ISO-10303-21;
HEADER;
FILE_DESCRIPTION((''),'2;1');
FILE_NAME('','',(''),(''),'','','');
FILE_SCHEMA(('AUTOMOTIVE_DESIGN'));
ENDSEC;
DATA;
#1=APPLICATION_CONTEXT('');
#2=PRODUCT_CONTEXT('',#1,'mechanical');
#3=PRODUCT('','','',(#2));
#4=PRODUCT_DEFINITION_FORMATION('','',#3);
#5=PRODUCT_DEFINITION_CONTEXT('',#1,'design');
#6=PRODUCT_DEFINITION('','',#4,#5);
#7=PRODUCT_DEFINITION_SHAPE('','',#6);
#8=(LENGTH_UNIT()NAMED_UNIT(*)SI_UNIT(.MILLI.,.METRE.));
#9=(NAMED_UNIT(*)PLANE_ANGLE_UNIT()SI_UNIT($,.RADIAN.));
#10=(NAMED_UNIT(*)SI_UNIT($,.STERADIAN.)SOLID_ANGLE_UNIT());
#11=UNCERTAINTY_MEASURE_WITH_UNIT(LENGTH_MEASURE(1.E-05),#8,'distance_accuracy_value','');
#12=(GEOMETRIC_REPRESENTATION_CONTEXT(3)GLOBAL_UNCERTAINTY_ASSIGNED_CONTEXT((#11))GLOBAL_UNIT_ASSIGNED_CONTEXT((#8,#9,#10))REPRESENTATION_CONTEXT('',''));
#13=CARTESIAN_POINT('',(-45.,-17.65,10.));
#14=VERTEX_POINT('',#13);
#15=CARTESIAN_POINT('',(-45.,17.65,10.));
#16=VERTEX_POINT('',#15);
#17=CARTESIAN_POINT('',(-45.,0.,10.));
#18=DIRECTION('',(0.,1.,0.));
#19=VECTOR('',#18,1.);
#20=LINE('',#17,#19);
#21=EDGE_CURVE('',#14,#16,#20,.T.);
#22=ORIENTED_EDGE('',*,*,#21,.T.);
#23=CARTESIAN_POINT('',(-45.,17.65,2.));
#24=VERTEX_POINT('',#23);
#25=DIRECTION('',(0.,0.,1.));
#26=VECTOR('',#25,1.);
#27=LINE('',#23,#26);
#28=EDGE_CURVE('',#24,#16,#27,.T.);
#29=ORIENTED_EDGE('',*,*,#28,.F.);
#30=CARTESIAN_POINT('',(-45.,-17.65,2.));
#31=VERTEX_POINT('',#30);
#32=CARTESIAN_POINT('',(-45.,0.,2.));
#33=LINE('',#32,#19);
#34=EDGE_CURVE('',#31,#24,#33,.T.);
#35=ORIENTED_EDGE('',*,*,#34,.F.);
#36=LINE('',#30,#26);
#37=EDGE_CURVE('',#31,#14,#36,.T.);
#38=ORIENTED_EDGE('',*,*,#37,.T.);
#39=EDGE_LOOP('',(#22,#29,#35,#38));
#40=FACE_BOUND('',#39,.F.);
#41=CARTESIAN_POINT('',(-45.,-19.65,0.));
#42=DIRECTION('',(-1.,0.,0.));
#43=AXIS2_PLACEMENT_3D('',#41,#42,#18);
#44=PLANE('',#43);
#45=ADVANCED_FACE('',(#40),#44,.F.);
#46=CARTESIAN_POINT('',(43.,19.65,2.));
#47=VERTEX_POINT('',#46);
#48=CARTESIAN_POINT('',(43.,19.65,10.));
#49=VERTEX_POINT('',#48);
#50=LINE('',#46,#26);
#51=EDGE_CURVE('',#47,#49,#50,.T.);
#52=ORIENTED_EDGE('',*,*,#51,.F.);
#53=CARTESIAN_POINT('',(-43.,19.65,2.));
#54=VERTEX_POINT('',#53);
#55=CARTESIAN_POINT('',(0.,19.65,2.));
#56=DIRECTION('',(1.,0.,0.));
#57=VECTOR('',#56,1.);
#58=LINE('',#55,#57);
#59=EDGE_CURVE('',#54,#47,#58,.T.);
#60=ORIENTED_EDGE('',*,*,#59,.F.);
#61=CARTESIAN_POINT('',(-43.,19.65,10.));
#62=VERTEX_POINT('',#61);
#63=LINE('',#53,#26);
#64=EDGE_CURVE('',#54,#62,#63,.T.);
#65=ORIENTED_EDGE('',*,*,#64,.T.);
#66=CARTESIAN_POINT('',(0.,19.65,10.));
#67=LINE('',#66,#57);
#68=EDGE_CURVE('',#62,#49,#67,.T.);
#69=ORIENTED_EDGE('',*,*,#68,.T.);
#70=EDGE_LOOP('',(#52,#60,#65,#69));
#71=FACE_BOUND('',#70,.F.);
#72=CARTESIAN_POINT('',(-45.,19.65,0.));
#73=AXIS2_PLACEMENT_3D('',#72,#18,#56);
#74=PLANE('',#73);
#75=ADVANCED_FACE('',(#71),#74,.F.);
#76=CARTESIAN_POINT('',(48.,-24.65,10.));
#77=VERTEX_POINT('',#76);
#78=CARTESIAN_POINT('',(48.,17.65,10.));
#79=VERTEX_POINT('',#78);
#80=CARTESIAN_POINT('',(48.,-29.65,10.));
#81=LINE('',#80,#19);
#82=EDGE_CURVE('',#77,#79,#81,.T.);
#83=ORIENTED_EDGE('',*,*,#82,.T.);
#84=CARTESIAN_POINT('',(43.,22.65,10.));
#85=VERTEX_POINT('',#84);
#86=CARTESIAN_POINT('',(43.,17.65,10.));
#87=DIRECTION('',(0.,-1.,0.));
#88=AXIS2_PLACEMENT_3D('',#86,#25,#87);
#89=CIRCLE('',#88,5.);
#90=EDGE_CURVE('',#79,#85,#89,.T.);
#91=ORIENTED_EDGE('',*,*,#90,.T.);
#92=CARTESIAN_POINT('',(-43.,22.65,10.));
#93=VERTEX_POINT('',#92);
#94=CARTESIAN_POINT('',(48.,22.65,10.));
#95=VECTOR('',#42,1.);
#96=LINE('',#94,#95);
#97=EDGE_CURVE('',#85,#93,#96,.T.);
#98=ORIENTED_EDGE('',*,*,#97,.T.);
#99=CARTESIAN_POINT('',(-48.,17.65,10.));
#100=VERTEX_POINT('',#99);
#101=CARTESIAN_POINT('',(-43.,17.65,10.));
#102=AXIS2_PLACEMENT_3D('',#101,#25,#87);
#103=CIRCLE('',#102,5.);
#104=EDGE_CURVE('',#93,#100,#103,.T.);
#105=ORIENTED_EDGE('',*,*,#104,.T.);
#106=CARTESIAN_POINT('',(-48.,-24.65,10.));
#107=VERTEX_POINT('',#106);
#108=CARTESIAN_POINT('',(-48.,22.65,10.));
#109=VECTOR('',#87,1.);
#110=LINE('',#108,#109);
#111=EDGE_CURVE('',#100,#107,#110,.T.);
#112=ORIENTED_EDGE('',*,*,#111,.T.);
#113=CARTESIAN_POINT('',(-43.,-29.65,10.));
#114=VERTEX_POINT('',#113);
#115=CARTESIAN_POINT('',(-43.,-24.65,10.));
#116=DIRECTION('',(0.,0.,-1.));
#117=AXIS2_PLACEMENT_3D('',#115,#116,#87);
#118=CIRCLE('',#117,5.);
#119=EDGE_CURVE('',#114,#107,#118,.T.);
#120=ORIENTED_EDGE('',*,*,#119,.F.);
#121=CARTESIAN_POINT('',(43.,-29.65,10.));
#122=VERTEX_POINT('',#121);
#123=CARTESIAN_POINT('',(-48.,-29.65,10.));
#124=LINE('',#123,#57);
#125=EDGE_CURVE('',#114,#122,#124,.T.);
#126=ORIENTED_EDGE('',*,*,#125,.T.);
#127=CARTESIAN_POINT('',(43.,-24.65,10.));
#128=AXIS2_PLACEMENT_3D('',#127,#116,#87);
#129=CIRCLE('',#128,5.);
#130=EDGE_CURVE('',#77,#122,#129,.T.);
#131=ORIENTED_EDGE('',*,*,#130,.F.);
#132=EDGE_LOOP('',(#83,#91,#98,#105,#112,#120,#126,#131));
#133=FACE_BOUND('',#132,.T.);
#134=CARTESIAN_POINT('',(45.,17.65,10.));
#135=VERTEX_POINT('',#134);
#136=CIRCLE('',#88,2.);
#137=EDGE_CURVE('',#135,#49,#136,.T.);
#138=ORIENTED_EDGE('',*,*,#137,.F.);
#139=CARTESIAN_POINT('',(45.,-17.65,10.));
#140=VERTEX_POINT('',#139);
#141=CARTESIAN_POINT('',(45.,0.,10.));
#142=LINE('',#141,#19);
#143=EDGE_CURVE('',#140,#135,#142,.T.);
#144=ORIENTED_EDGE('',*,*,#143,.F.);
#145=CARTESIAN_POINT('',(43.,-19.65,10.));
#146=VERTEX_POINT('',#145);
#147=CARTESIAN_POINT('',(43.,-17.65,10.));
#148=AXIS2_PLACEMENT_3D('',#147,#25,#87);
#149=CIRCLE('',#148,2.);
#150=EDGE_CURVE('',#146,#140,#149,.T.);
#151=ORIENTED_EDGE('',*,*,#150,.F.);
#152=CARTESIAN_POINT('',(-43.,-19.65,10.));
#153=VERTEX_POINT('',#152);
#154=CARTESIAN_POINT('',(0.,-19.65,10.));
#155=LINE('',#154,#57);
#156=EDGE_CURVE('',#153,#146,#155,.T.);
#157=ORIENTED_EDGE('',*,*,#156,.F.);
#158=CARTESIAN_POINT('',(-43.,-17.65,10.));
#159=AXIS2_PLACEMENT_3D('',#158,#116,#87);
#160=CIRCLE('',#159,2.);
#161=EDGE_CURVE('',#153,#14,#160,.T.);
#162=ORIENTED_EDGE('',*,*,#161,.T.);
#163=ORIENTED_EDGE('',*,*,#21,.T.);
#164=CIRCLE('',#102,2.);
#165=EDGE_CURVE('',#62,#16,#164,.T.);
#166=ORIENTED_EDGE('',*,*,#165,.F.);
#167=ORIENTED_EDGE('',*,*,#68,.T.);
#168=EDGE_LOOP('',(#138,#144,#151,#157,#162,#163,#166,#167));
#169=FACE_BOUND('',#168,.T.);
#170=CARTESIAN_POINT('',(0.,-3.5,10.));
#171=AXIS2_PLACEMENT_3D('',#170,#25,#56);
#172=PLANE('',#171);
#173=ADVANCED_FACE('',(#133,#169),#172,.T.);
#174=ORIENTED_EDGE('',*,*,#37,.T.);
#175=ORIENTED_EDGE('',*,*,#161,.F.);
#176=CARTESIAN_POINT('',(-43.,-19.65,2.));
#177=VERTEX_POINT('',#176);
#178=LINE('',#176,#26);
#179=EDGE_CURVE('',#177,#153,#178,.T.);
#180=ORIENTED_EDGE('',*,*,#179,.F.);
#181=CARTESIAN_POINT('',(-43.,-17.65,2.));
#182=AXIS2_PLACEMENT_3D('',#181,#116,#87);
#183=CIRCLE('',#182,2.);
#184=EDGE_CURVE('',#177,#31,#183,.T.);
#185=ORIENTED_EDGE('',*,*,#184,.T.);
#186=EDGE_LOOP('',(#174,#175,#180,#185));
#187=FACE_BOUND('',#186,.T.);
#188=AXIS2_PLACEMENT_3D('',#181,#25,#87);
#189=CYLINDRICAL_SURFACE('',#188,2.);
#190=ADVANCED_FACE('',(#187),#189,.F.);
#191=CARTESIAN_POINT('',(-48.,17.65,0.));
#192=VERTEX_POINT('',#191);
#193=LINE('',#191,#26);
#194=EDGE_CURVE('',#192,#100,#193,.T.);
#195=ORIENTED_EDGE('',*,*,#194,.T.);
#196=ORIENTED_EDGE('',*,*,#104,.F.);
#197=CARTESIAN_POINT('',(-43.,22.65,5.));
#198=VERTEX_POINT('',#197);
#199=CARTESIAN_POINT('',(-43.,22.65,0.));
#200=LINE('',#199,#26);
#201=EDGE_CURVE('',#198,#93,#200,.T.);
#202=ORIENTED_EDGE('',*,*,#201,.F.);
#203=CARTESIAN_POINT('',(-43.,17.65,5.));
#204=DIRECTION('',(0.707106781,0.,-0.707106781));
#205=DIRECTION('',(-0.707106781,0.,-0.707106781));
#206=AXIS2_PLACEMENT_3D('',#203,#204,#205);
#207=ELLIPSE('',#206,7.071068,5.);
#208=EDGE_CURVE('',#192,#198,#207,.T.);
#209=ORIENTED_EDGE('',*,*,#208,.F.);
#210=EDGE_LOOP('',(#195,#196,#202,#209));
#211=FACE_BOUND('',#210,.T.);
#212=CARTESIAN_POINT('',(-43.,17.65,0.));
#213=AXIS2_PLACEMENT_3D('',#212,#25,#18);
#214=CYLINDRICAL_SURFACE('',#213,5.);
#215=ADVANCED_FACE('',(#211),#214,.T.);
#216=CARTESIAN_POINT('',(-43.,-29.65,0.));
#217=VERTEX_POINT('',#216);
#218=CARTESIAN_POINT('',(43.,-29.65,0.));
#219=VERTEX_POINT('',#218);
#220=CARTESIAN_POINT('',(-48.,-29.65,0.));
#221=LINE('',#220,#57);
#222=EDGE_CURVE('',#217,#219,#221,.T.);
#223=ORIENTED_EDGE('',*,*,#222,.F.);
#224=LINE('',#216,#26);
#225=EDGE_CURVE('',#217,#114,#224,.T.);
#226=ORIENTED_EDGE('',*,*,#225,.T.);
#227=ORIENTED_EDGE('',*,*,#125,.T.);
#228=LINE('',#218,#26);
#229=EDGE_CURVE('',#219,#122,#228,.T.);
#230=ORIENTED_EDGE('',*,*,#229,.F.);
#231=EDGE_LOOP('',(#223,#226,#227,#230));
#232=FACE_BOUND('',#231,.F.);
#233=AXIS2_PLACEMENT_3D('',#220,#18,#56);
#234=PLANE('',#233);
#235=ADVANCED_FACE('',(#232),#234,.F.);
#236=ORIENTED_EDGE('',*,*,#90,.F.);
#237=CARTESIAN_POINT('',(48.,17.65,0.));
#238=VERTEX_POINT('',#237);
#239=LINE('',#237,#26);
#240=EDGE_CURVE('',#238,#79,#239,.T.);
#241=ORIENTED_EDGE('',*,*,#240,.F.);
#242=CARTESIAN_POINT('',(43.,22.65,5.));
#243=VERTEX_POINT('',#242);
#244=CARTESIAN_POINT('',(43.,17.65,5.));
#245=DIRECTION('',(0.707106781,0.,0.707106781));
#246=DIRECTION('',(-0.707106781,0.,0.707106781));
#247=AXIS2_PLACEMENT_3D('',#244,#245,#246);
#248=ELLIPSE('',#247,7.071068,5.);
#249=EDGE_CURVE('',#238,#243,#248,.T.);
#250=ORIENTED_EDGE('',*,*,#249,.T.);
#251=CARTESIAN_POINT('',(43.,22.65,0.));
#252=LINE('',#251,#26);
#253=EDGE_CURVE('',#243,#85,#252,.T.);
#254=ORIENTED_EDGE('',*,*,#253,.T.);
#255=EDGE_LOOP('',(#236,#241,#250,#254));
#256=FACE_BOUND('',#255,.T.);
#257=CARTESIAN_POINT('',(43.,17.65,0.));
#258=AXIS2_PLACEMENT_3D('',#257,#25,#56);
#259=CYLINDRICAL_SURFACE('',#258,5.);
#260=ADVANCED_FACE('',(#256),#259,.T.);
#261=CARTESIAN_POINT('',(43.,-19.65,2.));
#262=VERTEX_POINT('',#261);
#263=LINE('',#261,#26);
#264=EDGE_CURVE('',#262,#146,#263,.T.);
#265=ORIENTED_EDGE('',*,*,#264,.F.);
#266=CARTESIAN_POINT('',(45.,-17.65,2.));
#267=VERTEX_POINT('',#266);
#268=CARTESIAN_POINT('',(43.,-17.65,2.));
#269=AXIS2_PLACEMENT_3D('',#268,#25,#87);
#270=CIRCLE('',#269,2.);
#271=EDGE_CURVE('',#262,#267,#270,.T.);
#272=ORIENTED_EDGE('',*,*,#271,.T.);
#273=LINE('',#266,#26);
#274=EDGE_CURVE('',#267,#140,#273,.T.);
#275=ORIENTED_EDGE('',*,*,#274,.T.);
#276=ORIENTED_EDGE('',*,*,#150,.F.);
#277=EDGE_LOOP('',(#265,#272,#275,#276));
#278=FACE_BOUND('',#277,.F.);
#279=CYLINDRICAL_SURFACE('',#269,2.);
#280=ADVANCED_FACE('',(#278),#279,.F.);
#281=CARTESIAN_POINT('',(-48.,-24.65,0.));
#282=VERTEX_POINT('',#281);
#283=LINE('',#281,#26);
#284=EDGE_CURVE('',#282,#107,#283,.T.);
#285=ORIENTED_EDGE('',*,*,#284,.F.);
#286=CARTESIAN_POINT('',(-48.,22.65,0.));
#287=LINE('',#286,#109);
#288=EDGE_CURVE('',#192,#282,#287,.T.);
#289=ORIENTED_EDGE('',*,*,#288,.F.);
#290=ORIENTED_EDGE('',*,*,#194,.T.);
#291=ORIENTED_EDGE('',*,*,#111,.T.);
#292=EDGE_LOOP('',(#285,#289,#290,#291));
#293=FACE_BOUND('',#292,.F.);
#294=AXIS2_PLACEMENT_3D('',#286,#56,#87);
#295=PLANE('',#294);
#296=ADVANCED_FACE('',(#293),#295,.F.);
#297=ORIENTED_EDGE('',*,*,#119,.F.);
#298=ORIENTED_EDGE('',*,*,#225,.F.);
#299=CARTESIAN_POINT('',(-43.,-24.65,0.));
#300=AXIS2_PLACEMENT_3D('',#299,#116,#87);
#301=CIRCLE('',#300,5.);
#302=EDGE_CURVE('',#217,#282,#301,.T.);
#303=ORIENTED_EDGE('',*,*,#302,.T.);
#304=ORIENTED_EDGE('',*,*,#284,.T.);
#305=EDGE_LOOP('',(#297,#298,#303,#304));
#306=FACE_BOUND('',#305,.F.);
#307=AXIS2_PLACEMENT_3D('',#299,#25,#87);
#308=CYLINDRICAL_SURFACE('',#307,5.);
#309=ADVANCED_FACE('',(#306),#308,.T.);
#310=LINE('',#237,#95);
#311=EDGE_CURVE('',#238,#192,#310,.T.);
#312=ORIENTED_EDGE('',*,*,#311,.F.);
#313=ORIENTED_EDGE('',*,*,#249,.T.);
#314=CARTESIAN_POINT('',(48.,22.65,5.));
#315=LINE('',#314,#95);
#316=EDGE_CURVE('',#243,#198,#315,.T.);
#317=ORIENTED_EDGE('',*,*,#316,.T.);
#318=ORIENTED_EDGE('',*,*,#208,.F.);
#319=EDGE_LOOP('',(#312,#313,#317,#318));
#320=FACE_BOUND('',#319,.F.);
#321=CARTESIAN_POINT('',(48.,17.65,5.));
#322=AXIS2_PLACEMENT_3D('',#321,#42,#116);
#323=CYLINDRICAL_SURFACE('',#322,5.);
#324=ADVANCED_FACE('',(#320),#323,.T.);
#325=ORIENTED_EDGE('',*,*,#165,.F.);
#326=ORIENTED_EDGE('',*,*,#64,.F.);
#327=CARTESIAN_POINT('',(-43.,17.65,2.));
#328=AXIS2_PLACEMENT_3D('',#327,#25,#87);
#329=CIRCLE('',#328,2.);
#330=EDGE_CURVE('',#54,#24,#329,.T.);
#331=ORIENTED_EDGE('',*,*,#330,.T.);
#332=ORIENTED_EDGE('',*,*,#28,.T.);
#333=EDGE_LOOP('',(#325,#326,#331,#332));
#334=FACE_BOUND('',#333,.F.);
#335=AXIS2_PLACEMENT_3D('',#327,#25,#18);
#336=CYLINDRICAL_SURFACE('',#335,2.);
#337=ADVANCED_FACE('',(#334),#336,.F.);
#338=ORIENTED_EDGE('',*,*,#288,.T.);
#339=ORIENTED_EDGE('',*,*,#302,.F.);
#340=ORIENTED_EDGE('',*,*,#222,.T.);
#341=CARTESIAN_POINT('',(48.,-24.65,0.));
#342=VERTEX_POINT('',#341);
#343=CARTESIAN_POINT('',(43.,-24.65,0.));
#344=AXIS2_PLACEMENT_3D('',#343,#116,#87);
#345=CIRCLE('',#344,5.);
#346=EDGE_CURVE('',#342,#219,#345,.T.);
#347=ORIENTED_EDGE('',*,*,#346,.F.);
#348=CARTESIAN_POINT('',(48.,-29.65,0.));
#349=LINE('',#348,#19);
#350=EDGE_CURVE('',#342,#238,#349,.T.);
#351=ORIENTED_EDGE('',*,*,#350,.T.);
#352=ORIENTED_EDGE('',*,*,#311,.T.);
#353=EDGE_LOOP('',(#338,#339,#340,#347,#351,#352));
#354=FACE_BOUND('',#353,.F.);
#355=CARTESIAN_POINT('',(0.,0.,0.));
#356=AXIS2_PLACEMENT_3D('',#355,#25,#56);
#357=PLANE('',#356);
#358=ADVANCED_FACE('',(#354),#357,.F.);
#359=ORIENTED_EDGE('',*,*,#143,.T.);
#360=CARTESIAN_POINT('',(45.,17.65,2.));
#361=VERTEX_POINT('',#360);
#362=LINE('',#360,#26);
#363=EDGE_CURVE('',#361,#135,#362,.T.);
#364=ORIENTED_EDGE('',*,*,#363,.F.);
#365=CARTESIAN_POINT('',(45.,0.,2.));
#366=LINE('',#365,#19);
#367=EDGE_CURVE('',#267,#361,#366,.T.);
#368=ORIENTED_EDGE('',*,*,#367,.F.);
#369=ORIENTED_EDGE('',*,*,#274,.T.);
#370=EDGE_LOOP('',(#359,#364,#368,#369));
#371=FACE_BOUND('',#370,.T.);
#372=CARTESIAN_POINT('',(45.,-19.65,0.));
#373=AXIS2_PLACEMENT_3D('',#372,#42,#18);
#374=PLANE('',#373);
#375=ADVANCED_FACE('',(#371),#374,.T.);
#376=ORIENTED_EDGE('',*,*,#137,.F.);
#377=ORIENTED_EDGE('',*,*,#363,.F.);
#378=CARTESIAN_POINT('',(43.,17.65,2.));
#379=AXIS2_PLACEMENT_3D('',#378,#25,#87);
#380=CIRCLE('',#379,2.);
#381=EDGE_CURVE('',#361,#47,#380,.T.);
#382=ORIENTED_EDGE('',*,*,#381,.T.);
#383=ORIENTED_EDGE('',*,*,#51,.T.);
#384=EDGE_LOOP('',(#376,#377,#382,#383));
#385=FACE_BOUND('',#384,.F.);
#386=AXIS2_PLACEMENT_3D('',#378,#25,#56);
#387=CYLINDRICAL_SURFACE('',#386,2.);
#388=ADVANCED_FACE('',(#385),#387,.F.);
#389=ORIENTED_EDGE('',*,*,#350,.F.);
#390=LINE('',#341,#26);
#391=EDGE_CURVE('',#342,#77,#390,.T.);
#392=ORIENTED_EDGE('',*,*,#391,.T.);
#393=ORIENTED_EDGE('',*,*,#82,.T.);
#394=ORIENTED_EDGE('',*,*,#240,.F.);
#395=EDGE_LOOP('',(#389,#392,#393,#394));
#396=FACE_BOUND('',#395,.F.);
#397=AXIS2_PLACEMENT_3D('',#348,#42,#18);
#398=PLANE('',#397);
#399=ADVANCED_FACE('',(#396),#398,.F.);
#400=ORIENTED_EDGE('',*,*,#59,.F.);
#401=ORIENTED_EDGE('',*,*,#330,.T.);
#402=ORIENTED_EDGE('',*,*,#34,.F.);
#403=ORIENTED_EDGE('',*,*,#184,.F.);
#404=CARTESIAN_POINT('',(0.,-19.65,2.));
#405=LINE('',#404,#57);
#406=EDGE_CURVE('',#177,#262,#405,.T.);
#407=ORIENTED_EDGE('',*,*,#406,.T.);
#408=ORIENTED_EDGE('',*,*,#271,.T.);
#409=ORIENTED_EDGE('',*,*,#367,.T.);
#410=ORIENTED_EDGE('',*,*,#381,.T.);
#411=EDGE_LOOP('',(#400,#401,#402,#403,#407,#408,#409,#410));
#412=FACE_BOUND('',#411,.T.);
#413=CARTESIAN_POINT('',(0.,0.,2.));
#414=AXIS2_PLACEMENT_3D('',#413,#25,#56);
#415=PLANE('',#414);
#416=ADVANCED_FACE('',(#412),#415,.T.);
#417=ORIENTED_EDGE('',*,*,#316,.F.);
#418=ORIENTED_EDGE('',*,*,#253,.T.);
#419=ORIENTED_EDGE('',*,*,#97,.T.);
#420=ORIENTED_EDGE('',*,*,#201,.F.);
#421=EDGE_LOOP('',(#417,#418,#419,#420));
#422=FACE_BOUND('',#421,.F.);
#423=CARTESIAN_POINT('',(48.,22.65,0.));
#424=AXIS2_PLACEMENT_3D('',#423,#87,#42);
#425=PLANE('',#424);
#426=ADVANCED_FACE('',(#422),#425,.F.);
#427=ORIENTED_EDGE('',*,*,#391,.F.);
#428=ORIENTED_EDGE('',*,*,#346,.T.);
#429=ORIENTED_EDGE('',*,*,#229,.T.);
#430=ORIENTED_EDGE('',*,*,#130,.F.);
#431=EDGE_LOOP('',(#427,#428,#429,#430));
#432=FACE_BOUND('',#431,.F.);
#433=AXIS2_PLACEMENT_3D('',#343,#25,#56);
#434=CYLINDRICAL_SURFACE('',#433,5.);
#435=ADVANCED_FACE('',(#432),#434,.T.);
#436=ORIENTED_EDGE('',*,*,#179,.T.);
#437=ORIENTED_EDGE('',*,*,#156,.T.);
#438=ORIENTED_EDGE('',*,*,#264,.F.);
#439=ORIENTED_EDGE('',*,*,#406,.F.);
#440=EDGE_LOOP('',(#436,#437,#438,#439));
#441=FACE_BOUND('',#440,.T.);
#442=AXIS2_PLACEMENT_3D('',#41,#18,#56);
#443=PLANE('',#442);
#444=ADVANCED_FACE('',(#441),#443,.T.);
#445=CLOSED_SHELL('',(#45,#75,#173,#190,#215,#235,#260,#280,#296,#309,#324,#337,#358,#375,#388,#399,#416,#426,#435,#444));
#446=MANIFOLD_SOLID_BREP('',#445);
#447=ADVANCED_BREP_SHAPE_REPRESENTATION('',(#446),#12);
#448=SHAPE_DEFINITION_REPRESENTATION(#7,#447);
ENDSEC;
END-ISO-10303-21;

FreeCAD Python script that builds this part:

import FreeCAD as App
import Part
import Sketcher
from FreeCAD import Vector
Q = App.Units.Quantity


def edges_at(feature, points):
    """Names of the edges that pass closest to the given points."""
    edges = feature.Shape.Edges
    near = lambda p: min(range(len(edges)), key=lambda i: edges[i].distToShape(Part.Vertex(*p))[0])
    return sorted({f"Edge{near(p) + 1}" for p in points})

doc = App.newDocument("Part")
body = doc.addObject("PartDesign::Body", "Body")

sketch1 = doc.addObject("Sketcher::SketchObject", "Sketch")
body.addObject(sketch1)
sketch1.AttachmentSupport = (doc.XY_Plane, [""])
sketch1.MapMode = "FlatFace"
sketch1.addGeometry(Part.LineSegment(Vector(48, -30, 0), Vector(48, 23, 0)), False)
sketch1.addGeometry(Part.LineSegment(Vector(48, 23, 0), Vector(-48, 23, 0)), False)
sketch1.addGeometry(Part.LineSegment(Vector(-48, 23, 0), Vector(-48, -30, 0)), False)
sketch1.addGeometry(Part.LineSegment(Vector(-48, -30, 0), Vector(48, -30, 0)), False)
sketch1.addGeometry(Part.LineSegment(Vector(45, -20, 0), Vector(-45, -20, 0)), False)
sketch1.addGeometry(Part.LineSegment(Vector(-45, -20, 0), Vector(-45, 20, 0)), False)
sketch1.addGeometry(Part.LineSegment(Vector(-45, 20, 0), Vector(45, 20, 0)), False)
sketch1.addGeometry(Part.LineSegment(Vector(45, 20, 0), Vector(45, -20, 0)), False)
sketch1.addConstraint(Sketcher.Constraint("Coincident", 0, 2, 1, 1))
sketch1.addConstraint(Sketcher.Constraint("Coincident", 1, 2, 2, 1))
sketch1.addConstraint(Sketcher.Constraint("Coincident", 2, 2, 3, 1))
sketch1.addConstraint(Sketcher.Constraint("Coincident", 3, 2, 0, 1))
sketch1.addConstraint(Sketcher.Constraint("Coincident", 4, 2, 5, 1))
sketch1.addConstraint(Sketcher.Constraint("Coincident", 5, 2, 6, 1))
sketch1.addConstraint(Sketcher.Constraint("Coincident", 6, 2, 7, 1))
sketch1.addConstraint(Sketcher.Constraint("Coincident", 7, 2, 4, 1))
sketch1.addConstraint(Sketcher.Constraint("Vertical", 0))
sketch1.addConstraint(Sketcher.Constraint("Horizontal", 1))
sketch1.addConstraint(Sketcher.Constraint("Vertical", 2))
sketch1.addConstraint(Sketcher.Constraint("Horizontal", 3))
sketch1.addConstraint(Sketcher.Constraint("Horizontal", 4))
sketch1.addConstraint(Sketcher.Constraint("Vertical", 5))
sketch1.addConstraint(Sketcher.Constraint("Horizontal", 6))
sketch1.addConstraint(Sketcher.Constraint("Vertical", 7))
sketch1.addConstraint(Sketcher.Constraint("Symmetric", 4, 2, 6, 2, -1, 1))
sketch1.addConstraint(Sketcher.Constraint("DistanceX", 1, 2, 1, 1, Q("96 mm")))
sketch1.addConstraint(Sketcher.Constraint("DistanceX", 4, 2, 4, 1, Q("90 mm")))
sketch1.addConstraint(Sketcher.Constraint("DistanceY", 0, 1, 0, 2, Q("52.3 mm")))
sketch1.addConstraint(Sketcher.Constraint("DistanceY", 5, 1, 5, 2, Q("39.3 mm")))
sketch1.addConstraint(Sketcher.Constraint("DistanceX", -1, 1, 0, 2, Q("48 mm")))
sketch1.addConstraint(Sketcher.Constraint("DistanceY", 2, 2, 4, 2, Q("10 mm")))
pad1 = doc.addObject("PartDesign::Pad", "Pad")
body.addObject(pad1)
pad1.Profile = sketch1
pad1.Length = 10

sketch2 = doc.addObject("Sketcher::SketchObject", "Sketch001")
body.addObject(sketch2)
sketch2.AttachmentSupport = (doc.XY_Plane, [""])
sketch2.MapMode = "FlatFace"
sketch2.addGeometry(Part.LineSegment(Vector(-45, 20, 0), Vector(-45, -20, 0)), False)
sketch2.addGeometry(Part.LineSegment(Vector(-45, -20, 0), Vector(45, -20, 0)), False)
sketch2.addGeometry(Part.LineSegment(Vector(45, -20, 0), Vector(45, 20, 0)), False)
sketch2.addGeometry(Part.LineSegment(Vector(45, 20, 0), Vector(-45, 20, 0)), False)
sketch2.addConstraint(Sketcher.Constraint("Coincident", 0, 2, 1, 1))
sketch2.addConstraint(Sketcher.Constraint("Coincident", 1, 2, 2, 1))
sketch2.addConstraint(Sketcher.Constraint("Coincident", 2, 2, 3, 1))
sketch2.addConstraint(Sketcher.Constraint("Coincident", 3, 2, 0, 1))
sketch2.addConstraint(Sketcher.Constraint("Vertical", 0))
sketch2.addConstraint(Sketcher.Constraint("Horizontal", 1))
sketch2.addConstraint(Sketcher.Constraint("Vertical", 2))
sketch2.addConstraint(Sketcher.Constraint("Horizontal", 3))
sketch2.addConstraint(Sketcher.Constraint("Symmetric", 0, 2, 2, 2, -1, 1))
sketch2.addConstraint(Sketcher.Constraint("DistanceX", 1, 1, 1, 2, Q("90 mm")))
sketch2.addConstraint(Sketcher.Constraint("DistanceY", 0, 2, 0, 1, Q("39.3 mm")))
pad2 = doc.addObject("PartDesign::Pad", "Pad001")
body.addObject(pad2)
pad2.Profile = sketch2
pad2.Length = 2
doc.recompute()

fillet = doc.addObject("PartDesign::Fillet", "Fillet")
body.addObject(fillet)
fillet.Base = (pad2, edges_at(pad2, [
    (0, 22.65, 0),
    (-48, 22.65, 5),
    (48, 22.65, 5),
    (-48, -29.65, 5),
    (48, -29.65, 5),
]))
fillet.Radius = 5
doc.recompute()

fillet2 = doc.addObject("PartDesign::Fillet", "Fillet001")
body.addObject(fillet2)
fillet2.Base = (fillet, edges_at(fillet, [
    (-45, 19.65, 6),
    (45, 19.65, 6),
    (45, -19.65, 6),
    (-45, -19.65, 6),
]))
fillet2.Radius = 2

doc.recompute()
